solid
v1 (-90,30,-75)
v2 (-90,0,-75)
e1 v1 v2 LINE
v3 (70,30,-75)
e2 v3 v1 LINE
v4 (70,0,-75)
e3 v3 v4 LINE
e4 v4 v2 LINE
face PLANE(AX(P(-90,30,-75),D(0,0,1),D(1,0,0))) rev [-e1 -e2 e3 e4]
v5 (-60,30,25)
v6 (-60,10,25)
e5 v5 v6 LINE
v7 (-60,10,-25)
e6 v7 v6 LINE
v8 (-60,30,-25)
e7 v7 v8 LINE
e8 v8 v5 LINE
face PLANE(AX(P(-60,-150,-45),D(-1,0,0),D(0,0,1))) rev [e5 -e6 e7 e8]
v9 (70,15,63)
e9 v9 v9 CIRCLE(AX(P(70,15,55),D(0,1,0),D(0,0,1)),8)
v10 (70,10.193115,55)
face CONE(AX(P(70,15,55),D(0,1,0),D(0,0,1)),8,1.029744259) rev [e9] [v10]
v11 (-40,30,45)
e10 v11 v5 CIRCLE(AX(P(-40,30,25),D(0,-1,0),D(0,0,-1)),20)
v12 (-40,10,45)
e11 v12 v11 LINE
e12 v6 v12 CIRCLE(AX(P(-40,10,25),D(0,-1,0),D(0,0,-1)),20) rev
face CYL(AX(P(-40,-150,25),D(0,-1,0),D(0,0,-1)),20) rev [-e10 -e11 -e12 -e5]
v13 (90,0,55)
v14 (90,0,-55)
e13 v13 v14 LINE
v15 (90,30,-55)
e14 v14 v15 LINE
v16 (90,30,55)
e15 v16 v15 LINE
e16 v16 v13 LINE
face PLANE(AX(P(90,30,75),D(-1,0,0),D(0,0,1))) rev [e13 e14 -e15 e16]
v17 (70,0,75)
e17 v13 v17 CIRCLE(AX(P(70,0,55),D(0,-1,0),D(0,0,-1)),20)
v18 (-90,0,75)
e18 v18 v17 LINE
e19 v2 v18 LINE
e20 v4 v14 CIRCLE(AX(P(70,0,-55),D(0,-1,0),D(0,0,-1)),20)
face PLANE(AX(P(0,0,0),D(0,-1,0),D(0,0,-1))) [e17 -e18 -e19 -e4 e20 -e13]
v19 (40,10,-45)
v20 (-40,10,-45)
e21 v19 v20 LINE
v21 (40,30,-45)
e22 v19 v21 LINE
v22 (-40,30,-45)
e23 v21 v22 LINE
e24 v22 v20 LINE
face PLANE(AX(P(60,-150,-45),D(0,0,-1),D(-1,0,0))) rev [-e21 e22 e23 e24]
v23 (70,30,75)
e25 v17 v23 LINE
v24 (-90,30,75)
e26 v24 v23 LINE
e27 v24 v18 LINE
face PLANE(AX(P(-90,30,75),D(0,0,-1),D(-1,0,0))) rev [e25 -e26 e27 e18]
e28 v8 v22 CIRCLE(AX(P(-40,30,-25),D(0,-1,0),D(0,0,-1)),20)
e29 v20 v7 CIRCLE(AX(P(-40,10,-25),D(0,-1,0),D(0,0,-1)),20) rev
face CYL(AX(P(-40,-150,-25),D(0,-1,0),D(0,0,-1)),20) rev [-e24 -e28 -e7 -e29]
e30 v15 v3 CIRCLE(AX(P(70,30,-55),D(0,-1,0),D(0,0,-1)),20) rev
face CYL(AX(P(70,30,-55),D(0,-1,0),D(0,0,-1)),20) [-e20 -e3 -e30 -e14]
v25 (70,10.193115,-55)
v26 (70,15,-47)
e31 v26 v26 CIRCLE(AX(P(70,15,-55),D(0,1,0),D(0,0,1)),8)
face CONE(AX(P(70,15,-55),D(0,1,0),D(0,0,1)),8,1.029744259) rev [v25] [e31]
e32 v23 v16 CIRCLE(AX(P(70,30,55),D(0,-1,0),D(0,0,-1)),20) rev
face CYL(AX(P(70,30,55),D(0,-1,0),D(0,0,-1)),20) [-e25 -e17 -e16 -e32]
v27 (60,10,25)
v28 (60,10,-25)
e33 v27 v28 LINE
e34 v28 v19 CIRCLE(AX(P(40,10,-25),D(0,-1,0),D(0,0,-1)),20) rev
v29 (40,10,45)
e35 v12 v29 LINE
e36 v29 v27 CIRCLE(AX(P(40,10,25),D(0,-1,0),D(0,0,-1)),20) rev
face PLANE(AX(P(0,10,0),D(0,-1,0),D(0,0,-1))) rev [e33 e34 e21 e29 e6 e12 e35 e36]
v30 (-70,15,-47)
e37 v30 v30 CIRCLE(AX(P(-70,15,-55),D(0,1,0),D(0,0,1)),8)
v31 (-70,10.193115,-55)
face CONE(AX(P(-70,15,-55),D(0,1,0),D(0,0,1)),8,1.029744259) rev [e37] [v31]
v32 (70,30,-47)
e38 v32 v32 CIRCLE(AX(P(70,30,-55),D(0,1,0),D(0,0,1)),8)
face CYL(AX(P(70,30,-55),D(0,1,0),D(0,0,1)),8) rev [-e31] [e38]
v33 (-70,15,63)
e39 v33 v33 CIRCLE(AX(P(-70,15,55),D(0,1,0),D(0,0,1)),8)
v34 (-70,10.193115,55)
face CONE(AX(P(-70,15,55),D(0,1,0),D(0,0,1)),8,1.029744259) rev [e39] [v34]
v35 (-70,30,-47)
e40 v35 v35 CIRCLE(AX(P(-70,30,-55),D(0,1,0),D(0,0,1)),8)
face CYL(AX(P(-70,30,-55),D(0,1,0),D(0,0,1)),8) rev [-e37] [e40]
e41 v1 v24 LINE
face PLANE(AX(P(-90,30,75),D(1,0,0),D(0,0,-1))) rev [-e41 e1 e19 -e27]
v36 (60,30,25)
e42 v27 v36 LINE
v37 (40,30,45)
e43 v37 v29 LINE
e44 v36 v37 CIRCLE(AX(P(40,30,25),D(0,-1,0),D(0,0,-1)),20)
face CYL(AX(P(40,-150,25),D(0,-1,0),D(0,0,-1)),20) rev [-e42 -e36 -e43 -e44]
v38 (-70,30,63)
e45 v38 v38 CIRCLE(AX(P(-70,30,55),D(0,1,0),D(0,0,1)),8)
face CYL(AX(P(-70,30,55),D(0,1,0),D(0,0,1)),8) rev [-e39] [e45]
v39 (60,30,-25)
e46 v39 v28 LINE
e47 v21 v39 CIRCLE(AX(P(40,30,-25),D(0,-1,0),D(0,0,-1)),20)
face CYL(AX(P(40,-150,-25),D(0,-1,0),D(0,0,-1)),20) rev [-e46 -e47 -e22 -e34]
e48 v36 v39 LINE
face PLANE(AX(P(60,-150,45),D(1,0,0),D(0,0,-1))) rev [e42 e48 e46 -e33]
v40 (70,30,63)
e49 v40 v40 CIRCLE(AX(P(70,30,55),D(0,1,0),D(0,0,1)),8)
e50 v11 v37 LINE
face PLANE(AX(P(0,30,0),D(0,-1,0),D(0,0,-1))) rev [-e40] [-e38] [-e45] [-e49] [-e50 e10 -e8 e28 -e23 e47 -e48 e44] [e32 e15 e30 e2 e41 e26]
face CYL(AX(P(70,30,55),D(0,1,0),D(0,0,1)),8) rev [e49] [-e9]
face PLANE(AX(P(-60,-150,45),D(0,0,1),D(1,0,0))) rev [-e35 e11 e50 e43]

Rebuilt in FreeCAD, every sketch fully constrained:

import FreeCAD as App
import Part
import Sketcher
Q = App.Units.Quantity


def edges_at(feature, points):
    """Names of the edges that pass closest to the given points."""
    edges = feature.Shape.Edges
    near = lambda p: min(range(len(edges)), key=lambda i: edges[i].distToShape(Part.Vertex(*p))[0])
    return sorted({f"Edge{near(p) + 1}" for p in points})


def add_polygon(sketch, points):
    """Adds a closed chain of lines whose ends are joined by coincident constraints."""
    first, n = sketch.GeometryCount, len(points)
    for a, b in zip(points, points[1:] + points[:1]):
        sketch.addGeometry(Part.LineSegment(App.Vector(*a, 0), App.Vector(*b, 0)), False)
    for i in range(n):
        sketch.addConstraint(Sketcher.Constraint("Coincident", first + i, 2, first + (i + 1) % n, 1))

doc = App.newDocument("Part")
body = doc.addObject("PartDesign::Body", "Body")

# Sketch on XZ plane
sketch1 = doc.addObject("Sketcher::SketchObject", "Sketch")
body.addObject(sketch1)
sketch1.AttachmentSupport = (doc.XZ_Plane, [""])
sketch1.MapMode = "FlatFace"
add_polygon(sketch1, [(-90, -75), (-90, 75), (90, 75), (90, -75)])  # lines 0-3
sketch1.addConstraint(Sketcher.Constraint("Vertical", 0))
sketch1.addConstraint(Sketcher.Constraint("Horizontal", 1))
sketch1.addConstraint(Sketcher.Constraint("Vertical", 2))
sketch1.addConstraint(Sketcher.Constraint("Horizontal", 3))
sketch1.addConstraint(Sketcher.Constraint("Symmetric", 0, 2, 2, 2, -1, 1))
sketch1.addConstraint(Sketcher.Constraint("DistanceX", 1, 1, 1, 2, Q("180 mm")))
sketch1.addConstraint(Sketcher.Constraint("DistanceY", 0, 1, 0, 2, Q("150 mm")))
pad1 = doc.addObject("PartDesign::Pad", "Pad")
body.addObject(pad1)
pad1.Profile = sketch1
pad1.Length = 30
pad1.Reversed = True

# Sketch on XZ plane
sketch2 = doc.addObject("Sketcher::SketchObject", "Sketch001")
body.addObject(sketch2)
sketch2.AttachmentSupport = (doc.XZ_Plane, [""])
sketch2.MapMode = "FlatFace"
sketch2.AttachmentOffset = App.Placement(App.Vector(0, 0, -30), App.Rotation())
sketch2.addGeometry(Part.Circle(App.Vector(-70, 55, 0), App.Vector(0, 0, 1), 8), False)
sketch2.addGeometry(Part.Circle(App.Vector(-70, -55, 0), App.Vector(0, 0, 1), 8), False)
sketch2.addGeometry(Part.Circle(App.Vector(70, -55, 0), App.Vector(0, 0, 1), 8), False)
sketch2.addGeometry(Part.Circle(App.Vector(70, 55, 0), App.Vector(0, 0, 1), 8), False)
sketch2.addConstraint(Sketcher.Constraint("Equal", 0, 1))
sketch2.addConstraint(Sketcher.Constraint("Equal", 1, 2))
sketch2.addConstraint(Sketcher.Constraint("Equal", 2, 3))
sketch2.addConstraint(Sketcher.Constraint("Symmetric", 0, 3, 2, 3, -1, 1))
sketch2.addConstraint(Sketcher.Constraint("Symmetric", 1, 3, 3, 3, -1, 1))
sketch2.addConstraint(Sketcher.Constraint("Symmetric", 1, 3, 2, 3, -2))
sketch2.addConstraint(Sketcher.Constraint("Diameter", 0, Q("16 mm")))
sketch2.addConstraint(Sketcher.Constraint("DistanceX", 0, 3, -1, 1, Q("70 mm")))
sketch2.addConstraint(Sketcher.Constraint("DistanceY", -1, 1, 0, 3, Q("55 mm")))
doc.recompute()
hole = doc.addObject("PartDesign::Hole", "Hole")
body.addObject(hole)
hole.Profile = sketch2
hole.ThreadType = "None"
hole.Diameter = 16
hole.DepthType = "Dimension"
hole.Depth = 15
hole.DrillPoint = "Angled"
hole.DrillPointAngle = 118
hole.Reversed = True

# Sketch on XZ plane
sketch3 = doc.addObject("Sketcher::SketchObject", "Sketch002")
body.addObject(sketch3)
sketch3.AttachmentSupport = (doc.XZ_Plane, [""])
sketch3.MapMode = "FlatFace"
sketch3.AttachmentOffset = App.Placement(App.Vector(0, 0, -30), App.Rotation())
add_polygon(sketch3, [(-60, -45), (-60, 45), (60, 45), (60, -45)])  # lines 0-3
sketch3.addConstraint(Sketcher.Constraint("Vertical", 0))
sketch3.addConstraint(Sketcher.Constraint("Horizontal", 1))
sketch3.addConstraint(Sketcher.Constraint("Vertical", 2))
sketch3.addConstraint(Sketcher.Constraint("Horizontal", 3))
sketch3.addConstraint(Sketcher.Constraint("Symmetric", 0, 2, 2, 2, -1, 1))
sketch3.addConstraint(Sketcher.Constraint("DistanceX", 1, 1, 1, 2, Q("120 mm")))
sketch3.addConstraint(Sketcher.Constraint("DistanceY", 0, 1, 0, 2, Q("90 mm")))
pocket1 = doc.addObject("PartDesign::Pocket", "Pocket")
body.addObject(pocket1)
pocket1.Profile = sketch3
pocket1.Length = 20
pocket1.Reversed = True
doc.recompute()

fillet = doc.addObject("PartDesign::Fillet", "Fillet")
body.addObject(fillet)
fillet.Base = (pocket1, edges_at(pocket1, [
    (60, 20, -45),
    (-60, 20, -45),
    (-60, 20, 45),
    (60, 20, 45),
]))
fillet.Radius = 20
doc.recompute()

fillet2 = doc.addObject("PartDesign::Fillet", "Fillet001")
body.addObject(fillet2)
fillet2.Base = (fillet, edges_at(fillet, [(90, 15, 75), (90, 15, -75)]))
fillet2.Radius = 20

doc.recompute()
